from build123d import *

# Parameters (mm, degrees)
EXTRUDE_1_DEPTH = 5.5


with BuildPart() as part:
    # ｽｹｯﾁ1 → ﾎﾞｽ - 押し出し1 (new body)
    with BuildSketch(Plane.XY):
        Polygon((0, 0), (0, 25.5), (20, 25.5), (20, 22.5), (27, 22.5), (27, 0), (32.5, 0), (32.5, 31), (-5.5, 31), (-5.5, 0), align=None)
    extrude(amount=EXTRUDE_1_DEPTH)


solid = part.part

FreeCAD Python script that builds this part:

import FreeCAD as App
import Part
import Sketcher

doc = App.newDocument("Part")
body = doc.addObject("PartDesign::Body", "Body")

# Sketch on XY plane
sketch1 = body.newObject("Sketcher::SketchObject", "Sketch")
sketch1.AttachmentSupport = (doc.getObject("XY_Plane"), [""])
sketch1.MapMode = "FlatFace"
sketch1.addGeometry([
    Part.LineSegment(App.Vector(0, 0, 0), App.Vector(0, 25.5, 0)),  # 0
    Part.LineSegment(App.Vector(0, 25.5, 0), App.Vector(20, 25.5, 0)),  # 1
    Part.LineSegment(App.Vector(20, 25.5, 0), App.Vector(20, 22.5, 0)),  # 2
    Part.LineSegment(App.Vector(20, 22.5, 0), App.Vector(27, 22.5, 0)),  # 3
    Part.LineSegment(App.Vector(27, 22.5, 0), App.Vector(27, 0, 0)),  # 4
    Part.LineSegment(App.Vector(27, 0, 0), App.Vector(32.5, 0, 0)),  # 5
    Part.LineSegment(App.Vector(32.5, 0, 0), App.Vector(32.5, 31, 0)),  # 6
    Part.LineSegment(App.Vector(32.5, 31, 0), App.Vector(-5.5, 31, 0)),  # 7
    Part.LineSegment(App.Vector(-5.5, 31, 0), App.Vector(-5.5, 0, 0)),  # 8
    Part.LineSegment(App.Vector(-5.5, 0, 0), App.Vector(0, 0, 0)),  # 9
], False)
sketch1.addConstraint([
    Sketcher.Constraint("Coincident", 0, 2, 1, 1),
    Sketcher.Constraint("Coincident", 1, 2, 2, 1),
    Sketcher.Constraint("Coincident", 2, 2, 3, 1),
    Sketcher.Constraint("Coincident", 3, 2, 4, 1),
    Sketcher.Constraint("Coincident", 4, 2, 5, 1),
    Sketcher.Constraint("Coincident", 5, 2, 6, 1),
    Sketcher.Constraint("Coincident", 6, 2, 7, 1),
    Sketcher.Constraint("Coincident", 7, 2, 8, 1),
    Sketcher.Constraint("Coincident", 8, 2, 9, 1),
    Sketcher.Constraint("Coincident", 9, 2, 0, 1),
    Sketcher.Constraint("Vertical", 0),
    Sketcher.Constraint("Horizontal", 1),
    Sketcher.Constraint("Vertical", 2),
    Sketcher.Constraint("Horizontal", 3),
    Sketcher.Constraint("Vertical", 4),
    Sketcher.Constraint("Horizontal", 5),
    Sketcher.Constraint("Vertical", 6),
    Sketcher.Constraint("Horizontal", 7),
    Sketcher.Constraint("Vertical", 8),
    Sketcher.Constraint("Horizontal", 9),
    Sketcher.Constraint("Coincident", 9, 2, -1, 1),
    Sketcher.Constraint("PointOnObject", 4, 2, -1),
    Sketcher.Constraint("Equal", 5, 9),
    Sketcher.Constraint("DistanceX", 1, 1, 1, 2, 20.0),
    Sketcher.Constraint("DistanceX", 3, 1, 3, 2, 7.0),
    Sketcher.Constraint("DistanceX", 7, 2, 7, 1, 38.0),
    Sketcher.Constraint("DistanceY", 2, 2, 2, 1, 3.0),
    Sketcher.Constraint("DistanceY", 6, 1, 6, 2, 31.0),
    Sketcher.Constraint("DistanceY", 0, 1, 0, 2, 25.5),
])
pad1 = body.newObject("PartDesign::Pad", "Pad")
pad1.Profile = sketch1
pad1.Length = 5.5

doc.recompute()
